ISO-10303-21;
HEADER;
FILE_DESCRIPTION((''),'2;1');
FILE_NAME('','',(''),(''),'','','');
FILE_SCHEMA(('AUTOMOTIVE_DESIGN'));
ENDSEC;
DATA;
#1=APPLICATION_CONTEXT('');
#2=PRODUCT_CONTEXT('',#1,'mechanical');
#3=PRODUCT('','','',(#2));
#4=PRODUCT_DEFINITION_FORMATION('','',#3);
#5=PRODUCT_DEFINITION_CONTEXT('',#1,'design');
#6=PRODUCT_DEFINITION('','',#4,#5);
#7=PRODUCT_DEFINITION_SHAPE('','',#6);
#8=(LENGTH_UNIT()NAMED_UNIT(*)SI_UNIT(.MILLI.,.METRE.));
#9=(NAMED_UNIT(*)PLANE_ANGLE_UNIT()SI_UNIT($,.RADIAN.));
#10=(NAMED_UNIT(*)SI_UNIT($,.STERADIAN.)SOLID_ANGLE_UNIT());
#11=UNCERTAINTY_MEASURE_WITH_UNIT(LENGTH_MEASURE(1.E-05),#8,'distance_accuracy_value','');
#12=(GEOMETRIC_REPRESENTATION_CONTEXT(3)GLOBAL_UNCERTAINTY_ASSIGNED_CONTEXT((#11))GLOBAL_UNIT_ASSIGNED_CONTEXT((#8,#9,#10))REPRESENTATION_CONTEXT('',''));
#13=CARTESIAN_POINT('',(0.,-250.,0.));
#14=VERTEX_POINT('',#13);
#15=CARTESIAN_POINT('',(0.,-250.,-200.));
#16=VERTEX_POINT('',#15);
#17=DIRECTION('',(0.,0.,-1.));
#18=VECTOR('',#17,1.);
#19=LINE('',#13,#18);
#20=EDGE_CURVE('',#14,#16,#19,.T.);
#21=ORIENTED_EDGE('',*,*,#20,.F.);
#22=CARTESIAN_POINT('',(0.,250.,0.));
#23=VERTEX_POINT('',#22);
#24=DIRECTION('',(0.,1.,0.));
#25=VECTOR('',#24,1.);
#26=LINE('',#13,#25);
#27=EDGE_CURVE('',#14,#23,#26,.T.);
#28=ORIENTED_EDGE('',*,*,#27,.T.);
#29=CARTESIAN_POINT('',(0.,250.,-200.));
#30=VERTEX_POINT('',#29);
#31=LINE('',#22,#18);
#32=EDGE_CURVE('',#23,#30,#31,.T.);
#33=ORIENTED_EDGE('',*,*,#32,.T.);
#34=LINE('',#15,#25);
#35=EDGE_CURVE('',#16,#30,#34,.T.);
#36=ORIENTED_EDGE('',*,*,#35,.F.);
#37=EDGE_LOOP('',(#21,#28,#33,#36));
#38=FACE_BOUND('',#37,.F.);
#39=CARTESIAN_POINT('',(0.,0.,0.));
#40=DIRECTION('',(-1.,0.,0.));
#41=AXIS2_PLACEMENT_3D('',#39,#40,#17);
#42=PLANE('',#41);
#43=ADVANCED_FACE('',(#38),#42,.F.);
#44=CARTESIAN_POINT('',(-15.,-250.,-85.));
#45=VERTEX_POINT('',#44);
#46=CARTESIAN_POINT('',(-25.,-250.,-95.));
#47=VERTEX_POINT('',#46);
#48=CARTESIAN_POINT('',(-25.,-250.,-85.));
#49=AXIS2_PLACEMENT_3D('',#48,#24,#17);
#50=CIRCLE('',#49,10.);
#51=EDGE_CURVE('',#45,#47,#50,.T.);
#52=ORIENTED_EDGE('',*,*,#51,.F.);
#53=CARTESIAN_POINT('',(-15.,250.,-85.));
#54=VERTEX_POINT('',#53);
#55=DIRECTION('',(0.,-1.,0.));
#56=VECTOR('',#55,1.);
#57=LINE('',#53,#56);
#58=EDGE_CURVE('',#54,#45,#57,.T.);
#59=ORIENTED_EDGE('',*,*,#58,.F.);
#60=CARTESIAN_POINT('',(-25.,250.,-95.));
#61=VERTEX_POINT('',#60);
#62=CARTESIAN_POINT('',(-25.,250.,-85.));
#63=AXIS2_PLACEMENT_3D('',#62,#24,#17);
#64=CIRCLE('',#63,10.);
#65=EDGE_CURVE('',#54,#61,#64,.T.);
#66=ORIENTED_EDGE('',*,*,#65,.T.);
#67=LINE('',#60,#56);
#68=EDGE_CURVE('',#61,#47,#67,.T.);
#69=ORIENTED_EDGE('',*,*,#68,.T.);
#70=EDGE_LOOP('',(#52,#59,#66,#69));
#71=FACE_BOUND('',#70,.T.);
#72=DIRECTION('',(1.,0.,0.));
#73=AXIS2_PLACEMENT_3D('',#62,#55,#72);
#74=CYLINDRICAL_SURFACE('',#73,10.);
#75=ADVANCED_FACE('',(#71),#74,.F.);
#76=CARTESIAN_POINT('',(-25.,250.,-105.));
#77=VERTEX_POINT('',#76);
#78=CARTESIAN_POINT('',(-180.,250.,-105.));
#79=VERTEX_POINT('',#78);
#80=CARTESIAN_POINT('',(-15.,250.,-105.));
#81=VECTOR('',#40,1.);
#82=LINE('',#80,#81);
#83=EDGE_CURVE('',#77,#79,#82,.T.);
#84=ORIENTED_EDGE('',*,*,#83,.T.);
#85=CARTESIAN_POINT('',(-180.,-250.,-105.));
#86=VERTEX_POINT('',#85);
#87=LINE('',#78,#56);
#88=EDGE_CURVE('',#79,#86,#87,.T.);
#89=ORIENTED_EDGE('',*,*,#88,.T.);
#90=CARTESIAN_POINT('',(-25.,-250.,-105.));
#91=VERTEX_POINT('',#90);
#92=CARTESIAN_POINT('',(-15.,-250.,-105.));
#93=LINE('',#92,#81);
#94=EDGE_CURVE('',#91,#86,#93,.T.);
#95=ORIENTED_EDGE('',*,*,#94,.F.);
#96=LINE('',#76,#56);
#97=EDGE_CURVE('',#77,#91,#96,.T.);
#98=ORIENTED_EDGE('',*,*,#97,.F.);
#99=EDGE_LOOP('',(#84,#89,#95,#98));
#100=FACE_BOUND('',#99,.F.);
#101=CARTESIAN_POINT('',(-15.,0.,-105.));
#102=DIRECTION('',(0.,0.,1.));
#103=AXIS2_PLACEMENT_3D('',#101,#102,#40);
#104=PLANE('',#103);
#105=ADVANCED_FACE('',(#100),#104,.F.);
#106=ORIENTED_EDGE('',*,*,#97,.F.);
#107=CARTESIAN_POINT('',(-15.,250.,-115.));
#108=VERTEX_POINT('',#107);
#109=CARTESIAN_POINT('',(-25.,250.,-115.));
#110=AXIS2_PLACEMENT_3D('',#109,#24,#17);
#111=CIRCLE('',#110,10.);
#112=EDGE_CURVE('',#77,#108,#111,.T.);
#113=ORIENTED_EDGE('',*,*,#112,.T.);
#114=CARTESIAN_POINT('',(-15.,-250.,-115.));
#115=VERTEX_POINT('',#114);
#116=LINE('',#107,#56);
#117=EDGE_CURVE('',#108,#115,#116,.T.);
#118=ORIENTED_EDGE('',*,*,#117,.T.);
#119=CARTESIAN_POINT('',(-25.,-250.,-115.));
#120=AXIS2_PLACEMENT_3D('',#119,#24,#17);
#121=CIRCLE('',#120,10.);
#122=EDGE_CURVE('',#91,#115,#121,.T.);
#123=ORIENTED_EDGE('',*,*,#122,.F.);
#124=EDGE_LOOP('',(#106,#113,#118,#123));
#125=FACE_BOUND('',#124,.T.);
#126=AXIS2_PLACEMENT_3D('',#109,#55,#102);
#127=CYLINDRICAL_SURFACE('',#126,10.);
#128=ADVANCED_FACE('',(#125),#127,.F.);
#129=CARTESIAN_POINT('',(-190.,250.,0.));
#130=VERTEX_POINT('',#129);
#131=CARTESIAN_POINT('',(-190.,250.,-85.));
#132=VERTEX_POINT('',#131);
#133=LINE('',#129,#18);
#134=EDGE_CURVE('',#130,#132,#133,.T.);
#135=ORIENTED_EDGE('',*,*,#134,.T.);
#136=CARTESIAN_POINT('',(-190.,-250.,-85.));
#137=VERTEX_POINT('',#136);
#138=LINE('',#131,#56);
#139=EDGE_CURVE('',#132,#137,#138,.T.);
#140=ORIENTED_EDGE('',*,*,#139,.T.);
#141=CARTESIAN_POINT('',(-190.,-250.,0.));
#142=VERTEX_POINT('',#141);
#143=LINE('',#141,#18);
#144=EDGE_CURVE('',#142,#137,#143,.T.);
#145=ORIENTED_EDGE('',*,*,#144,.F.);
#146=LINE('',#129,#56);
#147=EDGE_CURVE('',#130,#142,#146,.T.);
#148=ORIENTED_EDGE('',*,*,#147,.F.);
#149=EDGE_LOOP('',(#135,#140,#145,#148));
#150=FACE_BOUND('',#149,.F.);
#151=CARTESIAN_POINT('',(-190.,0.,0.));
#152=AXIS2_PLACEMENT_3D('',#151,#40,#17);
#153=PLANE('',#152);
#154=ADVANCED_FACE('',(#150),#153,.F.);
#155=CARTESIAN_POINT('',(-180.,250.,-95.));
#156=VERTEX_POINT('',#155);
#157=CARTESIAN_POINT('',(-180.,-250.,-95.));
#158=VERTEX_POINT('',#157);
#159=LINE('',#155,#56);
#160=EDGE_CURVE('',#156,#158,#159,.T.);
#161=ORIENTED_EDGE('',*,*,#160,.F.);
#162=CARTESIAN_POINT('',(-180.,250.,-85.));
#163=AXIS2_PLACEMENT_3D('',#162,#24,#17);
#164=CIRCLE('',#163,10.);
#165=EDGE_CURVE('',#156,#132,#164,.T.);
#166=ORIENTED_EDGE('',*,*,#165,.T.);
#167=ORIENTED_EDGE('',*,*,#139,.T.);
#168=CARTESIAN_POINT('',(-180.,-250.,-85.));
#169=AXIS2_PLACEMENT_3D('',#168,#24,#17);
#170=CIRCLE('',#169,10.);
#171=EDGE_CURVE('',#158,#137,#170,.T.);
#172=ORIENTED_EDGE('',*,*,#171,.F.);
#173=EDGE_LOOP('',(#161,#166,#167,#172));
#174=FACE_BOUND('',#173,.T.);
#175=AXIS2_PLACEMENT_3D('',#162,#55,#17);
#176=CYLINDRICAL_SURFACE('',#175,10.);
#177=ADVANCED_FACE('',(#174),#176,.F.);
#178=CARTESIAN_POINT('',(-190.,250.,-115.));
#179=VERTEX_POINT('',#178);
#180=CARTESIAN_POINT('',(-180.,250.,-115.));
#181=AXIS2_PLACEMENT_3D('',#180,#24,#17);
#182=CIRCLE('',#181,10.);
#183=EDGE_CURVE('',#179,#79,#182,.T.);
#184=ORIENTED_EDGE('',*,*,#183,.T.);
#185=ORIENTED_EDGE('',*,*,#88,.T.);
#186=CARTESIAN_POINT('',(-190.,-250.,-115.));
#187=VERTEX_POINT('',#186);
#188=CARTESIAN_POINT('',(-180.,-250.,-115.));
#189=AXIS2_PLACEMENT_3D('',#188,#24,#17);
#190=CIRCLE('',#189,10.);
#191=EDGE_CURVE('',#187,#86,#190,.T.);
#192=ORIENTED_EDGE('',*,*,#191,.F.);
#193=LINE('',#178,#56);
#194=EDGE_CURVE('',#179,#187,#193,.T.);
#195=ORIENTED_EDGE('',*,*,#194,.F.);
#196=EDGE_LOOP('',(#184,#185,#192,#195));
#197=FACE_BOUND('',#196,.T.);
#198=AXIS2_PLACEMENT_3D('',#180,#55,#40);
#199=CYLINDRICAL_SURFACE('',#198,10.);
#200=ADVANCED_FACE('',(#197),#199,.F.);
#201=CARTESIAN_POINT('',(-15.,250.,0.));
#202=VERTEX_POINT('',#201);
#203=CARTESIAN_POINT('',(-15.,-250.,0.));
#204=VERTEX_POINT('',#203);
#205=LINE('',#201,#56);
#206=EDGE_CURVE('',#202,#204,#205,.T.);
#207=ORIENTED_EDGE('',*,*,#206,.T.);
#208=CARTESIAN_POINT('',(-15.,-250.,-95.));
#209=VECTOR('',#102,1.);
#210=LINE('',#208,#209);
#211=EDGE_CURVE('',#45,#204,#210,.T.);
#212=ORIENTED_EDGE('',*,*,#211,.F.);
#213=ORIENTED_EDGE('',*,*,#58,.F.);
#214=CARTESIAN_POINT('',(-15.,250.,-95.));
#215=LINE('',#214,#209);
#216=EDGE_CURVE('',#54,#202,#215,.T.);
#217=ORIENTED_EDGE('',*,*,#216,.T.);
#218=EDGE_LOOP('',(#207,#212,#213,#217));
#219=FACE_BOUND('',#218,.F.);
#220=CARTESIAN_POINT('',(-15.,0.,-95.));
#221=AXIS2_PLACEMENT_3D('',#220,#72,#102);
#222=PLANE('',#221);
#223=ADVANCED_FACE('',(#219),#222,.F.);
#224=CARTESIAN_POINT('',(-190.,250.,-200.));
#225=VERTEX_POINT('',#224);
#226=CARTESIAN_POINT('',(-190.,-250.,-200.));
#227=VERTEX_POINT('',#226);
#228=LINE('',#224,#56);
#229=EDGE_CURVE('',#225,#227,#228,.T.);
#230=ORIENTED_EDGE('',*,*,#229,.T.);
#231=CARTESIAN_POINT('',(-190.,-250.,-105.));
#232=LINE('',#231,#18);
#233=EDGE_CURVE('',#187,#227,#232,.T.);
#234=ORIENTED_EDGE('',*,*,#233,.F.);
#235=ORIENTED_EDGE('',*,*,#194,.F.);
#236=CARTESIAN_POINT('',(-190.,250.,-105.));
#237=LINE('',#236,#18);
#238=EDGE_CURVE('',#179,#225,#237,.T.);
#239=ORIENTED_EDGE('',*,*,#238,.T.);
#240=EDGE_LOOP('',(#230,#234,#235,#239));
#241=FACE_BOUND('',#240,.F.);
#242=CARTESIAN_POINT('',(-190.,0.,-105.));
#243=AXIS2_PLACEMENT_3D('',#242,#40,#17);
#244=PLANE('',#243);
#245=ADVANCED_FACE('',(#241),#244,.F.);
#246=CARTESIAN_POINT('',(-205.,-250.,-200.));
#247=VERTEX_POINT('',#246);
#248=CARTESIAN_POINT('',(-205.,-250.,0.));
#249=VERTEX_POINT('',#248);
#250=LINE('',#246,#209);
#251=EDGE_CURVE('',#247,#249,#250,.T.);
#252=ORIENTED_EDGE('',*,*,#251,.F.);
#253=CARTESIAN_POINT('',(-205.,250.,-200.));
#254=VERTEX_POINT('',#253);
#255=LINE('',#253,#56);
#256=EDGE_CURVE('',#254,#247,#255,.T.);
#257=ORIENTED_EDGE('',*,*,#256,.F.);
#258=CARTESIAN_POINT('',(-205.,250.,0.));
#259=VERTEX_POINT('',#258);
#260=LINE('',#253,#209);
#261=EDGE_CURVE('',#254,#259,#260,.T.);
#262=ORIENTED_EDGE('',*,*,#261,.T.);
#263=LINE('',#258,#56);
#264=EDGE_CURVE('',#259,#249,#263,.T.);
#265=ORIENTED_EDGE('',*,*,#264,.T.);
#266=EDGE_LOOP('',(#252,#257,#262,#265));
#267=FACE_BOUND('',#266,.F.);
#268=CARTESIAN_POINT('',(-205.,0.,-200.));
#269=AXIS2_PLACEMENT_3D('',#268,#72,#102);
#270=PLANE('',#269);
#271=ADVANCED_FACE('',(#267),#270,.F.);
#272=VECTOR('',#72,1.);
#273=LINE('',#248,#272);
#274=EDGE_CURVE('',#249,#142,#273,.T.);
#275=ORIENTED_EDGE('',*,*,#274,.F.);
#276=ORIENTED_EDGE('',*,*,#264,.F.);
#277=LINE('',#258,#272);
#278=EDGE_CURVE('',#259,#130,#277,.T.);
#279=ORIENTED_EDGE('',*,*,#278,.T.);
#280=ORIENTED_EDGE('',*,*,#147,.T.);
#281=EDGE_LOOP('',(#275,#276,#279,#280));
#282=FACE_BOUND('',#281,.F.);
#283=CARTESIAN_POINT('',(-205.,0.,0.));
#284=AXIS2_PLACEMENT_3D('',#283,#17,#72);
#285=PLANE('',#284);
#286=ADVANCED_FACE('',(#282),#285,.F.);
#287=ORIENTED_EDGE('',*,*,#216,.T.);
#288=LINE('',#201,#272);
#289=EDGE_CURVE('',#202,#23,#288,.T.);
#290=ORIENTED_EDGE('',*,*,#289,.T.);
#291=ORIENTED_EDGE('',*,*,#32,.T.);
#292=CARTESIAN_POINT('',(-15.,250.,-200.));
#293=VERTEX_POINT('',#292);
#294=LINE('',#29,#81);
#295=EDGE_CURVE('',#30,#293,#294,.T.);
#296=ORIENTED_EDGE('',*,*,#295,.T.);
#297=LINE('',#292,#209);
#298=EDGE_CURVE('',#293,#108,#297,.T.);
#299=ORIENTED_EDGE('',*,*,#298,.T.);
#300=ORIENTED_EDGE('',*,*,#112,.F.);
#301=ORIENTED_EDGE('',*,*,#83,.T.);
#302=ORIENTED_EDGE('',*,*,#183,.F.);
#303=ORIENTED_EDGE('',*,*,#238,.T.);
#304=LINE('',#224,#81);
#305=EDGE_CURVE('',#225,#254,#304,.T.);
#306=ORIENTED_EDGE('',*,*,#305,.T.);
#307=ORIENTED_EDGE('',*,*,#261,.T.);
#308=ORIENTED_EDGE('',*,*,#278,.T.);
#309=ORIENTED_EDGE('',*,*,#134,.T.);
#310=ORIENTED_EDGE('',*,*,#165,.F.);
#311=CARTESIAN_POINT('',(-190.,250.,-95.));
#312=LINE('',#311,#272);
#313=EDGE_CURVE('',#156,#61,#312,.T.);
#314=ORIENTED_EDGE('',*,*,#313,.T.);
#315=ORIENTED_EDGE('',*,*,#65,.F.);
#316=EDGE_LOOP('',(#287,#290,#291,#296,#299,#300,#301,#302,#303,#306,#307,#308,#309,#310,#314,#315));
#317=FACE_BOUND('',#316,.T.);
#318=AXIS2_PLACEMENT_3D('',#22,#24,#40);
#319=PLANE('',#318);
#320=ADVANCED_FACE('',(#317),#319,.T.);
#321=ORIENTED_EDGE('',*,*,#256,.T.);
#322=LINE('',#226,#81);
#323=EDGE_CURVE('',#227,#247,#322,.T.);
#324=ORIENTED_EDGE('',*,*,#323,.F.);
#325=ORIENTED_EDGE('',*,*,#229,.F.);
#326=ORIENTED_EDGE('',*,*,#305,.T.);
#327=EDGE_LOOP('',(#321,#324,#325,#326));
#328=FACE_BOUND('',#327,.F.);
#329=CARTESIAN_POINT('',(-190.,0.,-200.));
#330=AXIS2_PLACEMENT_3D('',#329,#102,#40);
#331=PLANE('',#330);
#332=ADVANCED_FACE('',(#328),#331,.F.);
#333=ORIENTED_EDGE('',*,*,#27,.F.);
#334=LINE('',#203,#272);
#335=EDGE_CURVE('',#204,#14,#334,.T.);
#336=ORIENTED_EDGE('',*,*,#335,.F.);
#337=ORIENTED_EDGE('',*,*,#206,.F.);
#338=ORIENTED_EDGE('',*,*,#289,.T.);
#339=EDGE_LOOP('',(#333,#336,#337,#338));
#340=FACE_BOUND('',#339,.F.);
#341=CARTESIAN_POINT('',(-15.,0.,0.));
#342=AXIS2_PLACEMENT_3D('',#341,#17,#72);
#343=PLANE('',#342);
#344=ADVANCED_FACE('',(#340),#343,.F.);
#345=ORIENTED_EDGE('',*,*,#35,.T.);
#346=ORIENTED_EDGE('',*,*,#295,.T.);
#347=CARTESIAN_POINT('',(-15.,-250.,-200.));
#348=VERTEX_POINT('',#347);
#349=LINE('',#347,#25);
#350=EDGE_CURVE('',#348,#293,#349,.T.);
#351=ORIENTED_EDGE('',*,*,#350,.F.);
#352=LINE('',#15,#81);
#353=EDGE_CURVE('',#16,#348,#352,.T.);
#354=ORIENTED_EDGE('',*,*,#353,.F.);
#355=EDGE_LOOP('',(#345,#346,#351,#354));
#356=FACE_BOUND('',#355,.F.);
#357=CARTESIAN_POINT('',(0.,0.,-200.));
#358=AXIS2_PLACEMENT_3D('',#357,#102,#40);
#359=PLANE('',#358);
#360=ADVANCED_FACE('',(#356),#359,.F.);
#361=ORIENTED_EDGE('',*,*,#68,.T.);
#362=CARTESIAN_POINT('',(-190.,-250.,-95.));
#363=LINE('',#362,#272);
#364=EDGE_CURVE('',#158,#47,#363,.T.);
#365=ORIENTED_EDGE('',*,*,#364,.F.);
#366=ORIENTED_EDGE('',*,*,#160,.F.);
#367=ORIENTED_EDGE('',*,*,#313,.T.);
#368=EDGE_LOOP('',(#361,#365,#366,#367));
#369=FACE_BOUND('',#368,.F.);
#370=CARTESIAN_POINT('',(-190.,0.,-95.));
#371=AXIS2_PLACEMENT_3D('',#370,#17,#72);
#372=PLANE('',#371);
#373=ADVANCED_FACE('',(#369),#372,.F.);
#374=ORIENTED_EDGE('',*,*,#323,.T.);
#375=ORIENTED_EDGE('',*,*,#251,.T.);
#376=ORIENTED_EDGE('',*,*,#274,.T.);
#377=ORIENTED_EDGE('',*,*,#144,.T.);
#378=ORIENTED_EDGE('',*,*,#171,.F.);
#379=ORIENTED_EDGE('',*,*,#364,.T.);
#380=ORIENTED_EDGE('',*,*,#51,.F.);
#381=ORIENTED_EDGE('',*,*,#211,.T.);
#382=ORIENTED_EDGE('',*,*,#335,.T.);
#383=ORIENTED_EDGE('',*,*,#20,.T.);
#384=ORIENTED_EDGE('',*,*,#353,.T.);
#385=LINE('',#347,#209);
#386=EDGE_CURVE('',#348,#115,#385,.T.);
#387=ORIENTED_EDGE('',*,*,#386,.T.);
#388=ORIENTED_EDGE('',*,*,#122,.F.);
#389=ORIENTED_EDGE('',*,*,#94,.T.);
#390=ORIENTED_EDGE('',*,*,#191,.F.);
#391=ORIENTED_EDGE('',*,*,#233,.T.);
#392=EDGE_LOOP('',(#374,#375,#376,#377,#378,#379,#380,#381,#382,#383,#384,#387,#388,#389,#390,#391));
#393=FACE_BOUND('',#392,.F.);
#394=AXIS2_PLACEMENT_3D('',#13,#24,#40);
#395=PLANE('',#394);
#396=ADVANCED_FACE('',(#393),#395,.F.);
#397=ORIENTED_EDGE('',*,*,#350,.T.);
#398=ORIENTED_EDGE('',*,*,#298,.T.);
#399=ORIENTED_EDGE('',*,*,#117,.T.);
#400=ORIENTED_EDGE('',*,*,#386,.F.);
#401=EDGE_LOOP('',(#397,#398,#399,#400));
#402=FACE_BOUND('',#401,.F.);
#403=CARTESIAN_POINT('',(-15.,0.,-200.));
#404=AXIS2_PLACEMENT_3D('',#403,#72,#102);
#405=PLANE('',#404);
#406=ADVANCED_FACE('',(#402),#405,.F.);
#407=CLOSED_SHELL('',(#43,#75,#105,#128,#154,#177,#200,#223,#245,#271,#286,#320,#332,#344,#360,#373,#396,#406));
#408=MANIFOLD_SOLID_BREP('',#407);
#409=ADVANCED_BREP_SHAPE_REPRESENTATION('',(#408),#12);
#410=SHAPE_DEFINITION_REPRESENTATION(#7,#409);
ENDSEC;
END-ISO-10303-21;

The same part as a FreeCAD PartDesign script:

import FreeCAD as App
import Part
import Sketcher

V = App.Vector
Q = App.Units.Quantity


def edges_at(feature, points):
    """Names of the edges that pass closest to the given points."""
    edges = feature.Shape.Edges
    near = lambda p: min(range(len(edges)), key=lambda i: edges[i].distToShape(Part.Vertex(*p))[0])
    return sorted({f"Edge{near(p) + 1}" for p in points})

doc = App.newDocument("Part")
body = doc.addObject("PartDesign::Body", "Body")

sketch1 = doc.addObject("Sketcher::SketchObject", "Sketch")
body.addObject(sketch1)
sketch1.AttachmentSupport = (doc.XZ_Plane, [""])
sketch1.MapMode = "FlatFace"
sketch1.addGeometry([
    Part.LineSegment(V(-15, 0, 0), V(0, 0, 0)),
    Part.LineSegment(V(0, 0, 0), V(0, -200, 0)),
    Part.LineSegment(V(0, -200, 0), V(-15, -200, 0)),
    Part.LineSegment(V(-15, -200, 0), V(-15, -105, 0)),
    Part.LineSegment(V(-15, -105, 0), V(-190, -105, 0)),
    Part.LineSegment(V(-190, -105, 0), V(-190, -200, 0)),
    Part.LineSegment(V(-190, -200, 0), V(-205, -200, 0)),
    Part.LineSegment(V(-205, -200, 0), V(-205, 0, 0)),
    Part.LineSegment(V(-205, 0, 0), V(-190, 0, 0)),
    Part.LineSegment(V(-190, 0, 0), V(-190, -95, 0)),
    Part.LineSegment(V(-190, -95, 0), V(-15, -95, 0)),
    Part.LineSegment(V(-15, -95, 0), V(-15, 0, 0)),
], False)
sketch1.addConstraint([
    Sketcher.Constraint("Coincident", 0, 2, 1, 1),
    Sketcher.Constraint("Coincident", 1, 2, 2, 1),
    Sketcher.Constraint("Coincident", 2, 2, 3, 1),
    Sketcher.Constraint("Coincident", 3, 2, 4, 1),
    Sketcher.Constraint("Coincident", 4, 2, 5, 1),
    Sketcher.Constraint("Coincident", 5, 2, 6, 1),
    Sketcher.Constraint("Coincident", 6, 2, 7, 1),
    Sketcher.Constraint("Coincident", 7, 2, 8, 1),
    Sketcher.Constraint("Coincident", 8, 2, 9, 1),
    Sketcher.Constraint("Coincident", 9, 2, 10, 1),
    Sketcher.Constraint("Coincident", 10, 2, 11, 1),
    Sketcher.Constraint("Coincident", 11, 2, 0, 1),
    Sketcher.Constraint("Horizontal", 0),
    Sketcher.Constraint("Vertical", 1),
    Sketcher.Constraint("Horizontal", 2),
    Sketcher.Constraint("Vertical", 3),
    Sketcher.Constraint("Horizontal", 4),
    Sketcher.Constraint("Vertical", 5),
    Sketcher.Constraint("Horizontal", 6),
    Sketcher.Constraint("Vertical", 7),
    Sketcher.Constraint("Horizontal", 8),
    Sketcher.Constraint("Vertical", 9),
    Sketcher.Constraint("Horizontal", 10),
    Sketcher.Constraint("Vertical", 11),
    Sketcher.Constraint("Coincident", 0, 2, -1, 1),
    Sketcher.Constraint("PointOnObject", 7, 2, -1),
    Sketcher.Constraint("Horizontal", 2, 2, 5, 2),
    Sketcher.Constraint("Vertical", 5, 2, 8, 2),
    Sketcher.Constraint("Vertical", 3, 2, 10, 2),
    Sketcher.Constraint("Equal", 2, 6),
    Sketcher.Constraint("Equal", 5, 9),
    Sketcher.Constraint("DistanceX", 0, 1, 0, 2, Q("15 mm")),
    Sketcher.Constraint("DistanceX", 4, 2, 4, 1, Q("175 mm")),
    Sketcher.Constraint("DistanceY", 1, 2, 1, 1, Q("200 mm")),
    Sketcher.Constraint("DistanceY", 3, 1, 3, 2, Q("95 mm")),
])
pad1 = doc.addObject("PartDesign::Pad", "Pad")
body.addObject(pad1)
pad1.Profile = sketch1
pad1.Length = 500
pad1.Midplane = True
doc.recompute()

fillet = doc.addObject("PartDesign::Fillet", "Fillet")
body.addObject(fillet)
fillet.Base = (pad1, edges_at(pad1, [
    (-190, 0, -105),
    (-15, 0, -105),
    (-15, 0, -95),
    (-190, 0, -95),
]))
fillet.Radius = 10

doc.recompute()
